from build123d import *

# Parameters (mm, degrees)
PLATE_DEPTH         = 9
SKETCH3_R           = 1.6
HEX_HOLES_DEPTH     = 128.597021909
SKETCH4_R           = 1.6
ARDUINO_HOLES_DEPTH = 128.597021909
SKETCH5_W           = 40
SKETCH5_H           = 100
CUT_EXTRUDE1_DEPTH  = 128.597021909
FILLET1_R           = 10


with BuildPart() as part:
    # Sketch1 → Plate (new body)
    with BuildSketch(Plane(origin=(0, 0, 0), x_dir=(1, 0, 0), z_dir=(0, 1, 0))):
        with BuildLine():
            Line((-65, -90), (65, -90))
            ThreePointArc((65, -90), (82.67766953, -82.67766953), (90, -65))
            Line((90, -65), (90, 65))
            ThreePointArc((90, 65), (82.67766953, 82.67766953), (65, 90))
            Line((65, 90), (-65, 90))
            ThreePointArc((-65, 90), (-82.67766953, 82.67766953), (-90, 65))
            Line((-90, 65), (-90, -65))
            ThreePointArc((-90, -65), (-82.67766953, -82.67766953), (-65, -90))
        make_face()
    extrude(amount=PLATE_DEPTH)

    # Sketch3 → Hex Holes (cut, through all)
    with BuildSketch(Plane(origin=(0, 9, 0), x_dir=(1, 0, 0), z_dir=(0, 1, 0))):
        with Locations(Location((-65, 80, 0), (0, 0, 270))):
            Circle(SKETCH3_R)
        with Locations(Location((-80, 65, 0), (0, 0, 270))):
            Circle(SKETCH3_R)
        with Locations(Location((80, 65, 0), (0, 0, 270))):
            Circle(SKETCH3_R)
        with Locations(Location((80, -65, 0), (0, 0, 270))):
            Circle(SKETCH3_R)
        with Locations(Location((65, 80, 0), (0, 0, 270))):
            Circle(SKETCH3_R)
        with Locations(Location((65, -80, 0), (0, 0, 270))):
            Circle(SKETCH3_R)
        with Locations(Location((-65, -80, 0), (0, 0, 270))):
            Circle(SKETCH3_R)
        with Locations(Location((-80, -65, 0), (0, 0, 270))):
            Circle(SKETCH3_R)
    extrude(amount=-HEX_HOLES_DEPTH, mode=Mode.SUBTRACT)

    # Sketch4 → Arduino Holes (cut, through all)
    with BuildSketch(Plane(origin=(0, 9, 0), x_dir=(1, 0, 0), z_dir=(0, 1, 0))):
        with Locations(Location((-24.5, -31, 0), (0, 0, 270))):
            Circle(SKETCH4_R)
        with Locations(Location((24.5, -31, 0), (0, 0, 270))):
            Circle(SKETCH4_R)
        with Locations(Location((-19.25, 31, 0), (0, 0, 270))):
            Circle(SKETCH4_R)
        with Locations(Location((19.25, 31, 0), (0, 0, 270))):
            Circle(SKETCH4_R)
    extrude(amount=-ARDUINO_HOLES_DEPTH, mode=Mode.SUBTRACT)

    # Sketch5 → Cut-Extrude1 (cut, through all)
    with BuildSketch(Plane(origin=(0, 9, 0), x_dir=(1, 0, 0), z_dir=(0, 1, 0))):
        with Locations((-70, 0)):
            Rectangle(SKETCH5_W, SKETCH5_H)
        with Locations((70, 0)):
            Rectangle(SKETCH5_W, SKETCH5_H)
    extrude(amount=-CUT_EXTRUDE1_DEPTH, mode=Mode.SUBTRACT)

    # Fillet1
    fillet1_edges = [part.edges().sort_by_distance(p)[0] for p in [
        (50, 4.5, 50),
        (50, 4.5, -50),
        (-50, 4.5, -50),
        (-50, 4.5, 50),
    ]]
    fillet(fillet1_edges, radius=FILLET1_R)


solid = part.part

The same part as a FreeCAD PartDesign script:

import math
import FreeCAD as App
import Part
import Sketcher

V = App.Vector


def edges_at(feature, points):
    """Names of the edges that pass closest to the given points."""
    edges = feature.Shape.Edges
    near = lambda p: min(range(len(edges)), key=lambda i: edges[i].distToShape(Part.Vertex(*p))[0])
    return sorted({f"Edge{near(p) + 1}" for p in points})

doc = App.newDocument("Part")
body = doc.addObject("PartDesign::Body", "Body")

# Sketch on XZ plane
sketch1 = doc.addObject("Sketcher::SketchObject", "Sketch")
body.addObject(sketch1)
sketch1.AttachmentSupport = (doc.XZ_Plane, [""])
sketch1.MapMode = "FlatFace"
sketch1.addGeometry([
    Part.LineSegment(V(-65, 90, 0), V(65, 90, 0)),  # 0
    Part.ArcOfCircle(Part.Circle(V(65, 65, 0), V(0, 0, 1), 25), math.radians(0), math.radians(90)),  # 1
    Part.LineSegment(V(90, 65, 0), V(90, -65, 0)),  # 2
    Part.ArcOfCircle(Part.Circle(V(65, -65, 0), V(0, 0, 1), 25), math.radians(-90), math.radians(0)),  # 3
    Part.LineSegment(V(65, -90, 0), V(-65, -90, 0)),  # 4
    Part.ArcOfCircle(Part.Circle(V(-65, -65, 0), V(0, 0, 1), 25), math.radians(180), math.radians(270)),  # 5
    Part.LineSegment(V(-90, -65, 0), V(-90, 65, 0)),  # 6
    Part.ArcOfCircle(Part.Circle(V(-65, 65, 0), V(0, 0, 1), 25), math.radians(90), math.radians(180)),  # 7
], False)
sketch1.addConstraint([
    Sketcher.Constraint("Tangent", 0, 2, 1, 2),
    Sketcher.Constraint("Tangent", 1, 1, 2, 1),
    Sketcher.Constraint("Tangent", 2, 2, 3, 2),
    Sketcher.Constraint("Tangent", 3, 1, 4, 1),
    Sketcher.Constraint("Tangent", 4, 2, 5, 2),
    Sketcher.Constraint("Tangent", 5, 1, 6, 1),
    Sketcher.Constraint("Tangent", 6, 2, 7, 2),
    Sketcher.Constraint("Tangent", 7, 1, 0, 1),
    Sketcher.Constraint("Horizontal", 0),
    Sketcher.Constraint("Vertical", 2),
    Sketcher.Constraint("Horizontal", 4),
    Sketcher.Constraint("Vertical", 6),
    Sketcher.Constraint("Equal", 1, 3),
    Sketcher.Constraint("Equal", 3, 5),
    Sketcher.Constraint("Equal", 5, 7),
    Sketcher.Constraint("Symmetric", 1, 3, 5, 3, -1, 1),
    Sketcher.Constraint("Equal", 4, 2),
    Sketcher.Constraint("Radius", 1, 25.0),
    Sketcher.Constraint("DistanceX", 0, 1, 0, 2, 130.0),
])
pad1 = doc.addObject("PartDesign::Pad", "Pad")
body.addObject(pad1)
pad1.Profile = sketch1
pad1.Length = 9
pad1.Reversed = True

# Sketch on XZ plane
sketch2 = doc.addObject("Sketcher::SketchObject", "Sketch001")
body.addObject(sketch2)
sketch2.AttachmentSupport = (doc.XZ_Plane, [""])
sketch2.MapMode = "FlatFace"
sketch2.AttachmentOffset = App.Placement(V(0, 0, -9), App.Rotation())
sketch2.addGeometry([
    Part.Circle(V(-65, -80, 0), V(0, 0, 1), 1.6),  # 0
    Part.Circle(V(-80, -65, 0), V(0, 0, 1), 1.6),  # 1
    Part.Circle(V(80, -65, 0), V(0, 0, 1), 1.6),  # 2
    Part.Circle(V(80, 65, 0), V(0, 0, 1), 1.6),  # 3
    Part.Circle(V(65, -80, 0), V(0, 0, 1), 1.6),  # 4
    Part.Circle(V(65, 80, 0), V(0, 0, 1), 1.6),  # 5
    Part.Circle(V(-65, 80, 0), V(0, 0, 1), 1.6),  # 6
    Part.Circle(V(-80, 65, 0), V(0, 0, 1), 1.6),  # 7
], False)
sketch2.addConstraint([
    Sketcher.Constraint("Equal", 0, 1),
    Sketcher.Constraint("Equal", 1, 2),
    Sketcher.Constraint("Equal", 2, 3),
    Sketcher.Constraint("Equal", 3, 4),
    Sketcher.Constraint("Equal", 4, 5),
    Sketcher.Constraint("Equal", 5, 6),
    Sketcher.Constraint("Equal", 6, 7),
    Sketcher.Constraint("Symmetric", 1, 3, 3, 3, -1, 1),
    Sketcher.Constraint("Symmetric", 0, 3, 5, 3, -1, 1),
    Sketcher.Constraint("Symmetric", 4, 3, 6, 3, -1, 1),
    Sketcher.Constraint("Symmetric", 2, 3, 7, 3, -1, 1),
    Sketcher.Constraint("Symmetric", 1, 3, 2, 3, -2),
    Sketcher.Constraint("Symmetric", 0, 3, 4, 3, -2),
    Sketcher.Constraint("Diameter", 0, 3.2),
    Sketcher.Constraint("DistanceX", 0, 3, -1, 1, 65.0),
    Sketcher.Constraint("DistanceY", 0, 3, -1, 1, 80.0),
    Sketcher.Constraint("DistanceX", 1, 3, -1, 1, 80.0),
    Sketcher.Constraint("DistanceY", 1, 3, -1, 1, 65.0),
])
pocket1 = doc.addObject("PartDesign::Pocket", "Pocket")
body.addObject(pocket1)
pocket1.Profile = sketch2
pocket1.Type = "ThroughAll"
pocket1.Reversed = True

# Sketch on XZ plane
sketch3 = doc.addObject("Sketcher::SketchObject", "Sketch002")
body.addObject(sketch3)
sketch3.AttachmentSupport = (doc.XZ_Plane, [""])
sketch3.MapMode = "FlatFace"
sketch3.AttachmentOffset = App.Placement(V(0, 0, -9), App.Rotation())
sketch3.addGeometry([
    Part.Circle(V(-24.5, 31, 0), V(0, 0, 1), 1.6),
    Part.Circle(V(24.5, 31, 0), V(0, 0, 1), 1.6),
    Part.Circle(V(-19.2, -31, 0), V(0, 0, 1), 1.6),
    Part.Circle(V(19.2, -31, 0), V(0, 0, 1), 1.6),
], False)
sketch3.addConstraint([
    Sketcher.Constraint("Equal", 0, 1),
    Sketcher.Constraint("Equal", 1, 2),
    Sketcher.Constraint("Equal", 2, 3),
    Sketcher.Constraint("Symmetric", 0, 3, 1, 3, -2),
    Sketcher.Constraint("Symmetric", 2, 3, 3, 3, -2),
    Sketcher.Constraint("Diameter", 0, 3.2),
    Sketcher.Constraint("DistanceY", -1, 1, 0, 3, 31.0),
    Sketcher.Constraint("DistanceY", 2, 3, -1, 1, 31.0),
    Sketcher.Constraint("DistanceX", 0, 3, 1, 3, 49.0),
    Sketcher.Constraint("DistanceX", 2, 3, 3, 3, 38.5),
])
pocket2 = doc.addObject("PartDesign::Pocket", "Pocket001")
body.addObject(pocket2)
pocket2.Profile = sketch3
pocket2.Type = "ThroughAll"
pocket2.Reversed = True

# Sketch on XZ plane
sketch4 = doc.addObject("Sketcher::SketchObject", "Sketch003")
body.addObject(sketch4)
sketch4.AttachmentSupport = (doc.XZ_Plane, [""])
sketch4.MapMode = "FlatFace"
sketch4.AttachmentOffset = App.Placement(V(0, 0, -9), App.Rotation())
sketch4.addGeometry([
    Part.LineSegment(V(-90, -50, 0), V(-90, 50, 0)),  # 0
    Part.LineSegment(V(-90, 50, 0), V(-50, 50, 0)),  # 1
    Part.LineSegment(V(-50, 50, 0), V(-50, -50, 0)),  # 2
    Part.LineSegment(V(-50, -50, 0), V(-90, -50, 0)),  # 3
    Part.LineSegment(V(50, -50, 0), V(50, 50, 0)),  # 4
    Part.LineSegment(V(50, 50, 0), V(90, 50, 0)),  # 5
    Part.LineSegment(V(90, 50, 0), V(90, -50, 0)),  # 6
    Part.LineSegment(V(90, -50, 0), V(50, -50, 0)),  # 7
], False)
sketch4.addConstraint([
    Sketcher.Constraint("Coincident", 0, 2, 1, 1),
    Sketcher.Constraint("Coincident", 1, 2, 2, 1),
    Sketcher.Constraint("Coincident", 2, 2, 3, 1),
    Sketcher.Constraint("Coincident", 3, 2, 0, 1),
    Sketcher.Constraint("Coincident", 4, 2, 5, 1),
    Sketcher.Constraint("Coincident", 5, 2, 6, 1),
    Sketcher.Constraint("Coincident", 6, 2, 7, 1),
    Sketcher.Constraint("Coincident", 7, 2, 4, 1),
    Sketcher.Constraint("Vertical", 0),
    Sketcher.Constraint("Horizontal", 1),
    Sketcher.Constraint("Vertical", 2),
    Sketcher.Constraint("Horizontal", 3),
    Sketcher.Constraint("Vertical", 4),
    Sketcher.Constraint("Horizontal", 5),
    Sketcher.Constraint("Vertical", 6),
    Sketcher.Constraint("Horizontal", 7),
    Sketcher.Constraint("Symmetric", 2, 2, 4, 2, -1, 1),
    Sketcher.Constraint("Symmetric", 0, 2, 6, 2, -1, 1),
    Sketcher.Constraint("Horizontal", 1, 2, 4, 2),
    Sketcher.Constraint("DistanceX", 1, 1, 1, 2, 40.0),
    Sketcher.Constraint("DistanceY", 0, 1, 0, 2, 100.0),
    Sketcher.Constraint("DistanceX", 0, 2, -1, 1, 90.0),
])
pocket3 = doc.addObject("PartDesign::Pocket", "Pocket002")
body.addObject(pocket3)
pocket3.Profile = sketch4
pocket3.Type = "ThroughAll"
pocket3.Reversed = True
doc.recompute()

fillet = doc.addObject("PartDesign::Fillet", "Fillet")
body.addObject(fillet)
fillet.Base = (pocket3, edges_at(pocket3, [
    (50, 4.5, 50),
    (50, 4.5, -50),
    (-50, 4.5, -50),
    (-50, 4.5, 50),
]))
fillet.Radius = 10

doc.recompute()
